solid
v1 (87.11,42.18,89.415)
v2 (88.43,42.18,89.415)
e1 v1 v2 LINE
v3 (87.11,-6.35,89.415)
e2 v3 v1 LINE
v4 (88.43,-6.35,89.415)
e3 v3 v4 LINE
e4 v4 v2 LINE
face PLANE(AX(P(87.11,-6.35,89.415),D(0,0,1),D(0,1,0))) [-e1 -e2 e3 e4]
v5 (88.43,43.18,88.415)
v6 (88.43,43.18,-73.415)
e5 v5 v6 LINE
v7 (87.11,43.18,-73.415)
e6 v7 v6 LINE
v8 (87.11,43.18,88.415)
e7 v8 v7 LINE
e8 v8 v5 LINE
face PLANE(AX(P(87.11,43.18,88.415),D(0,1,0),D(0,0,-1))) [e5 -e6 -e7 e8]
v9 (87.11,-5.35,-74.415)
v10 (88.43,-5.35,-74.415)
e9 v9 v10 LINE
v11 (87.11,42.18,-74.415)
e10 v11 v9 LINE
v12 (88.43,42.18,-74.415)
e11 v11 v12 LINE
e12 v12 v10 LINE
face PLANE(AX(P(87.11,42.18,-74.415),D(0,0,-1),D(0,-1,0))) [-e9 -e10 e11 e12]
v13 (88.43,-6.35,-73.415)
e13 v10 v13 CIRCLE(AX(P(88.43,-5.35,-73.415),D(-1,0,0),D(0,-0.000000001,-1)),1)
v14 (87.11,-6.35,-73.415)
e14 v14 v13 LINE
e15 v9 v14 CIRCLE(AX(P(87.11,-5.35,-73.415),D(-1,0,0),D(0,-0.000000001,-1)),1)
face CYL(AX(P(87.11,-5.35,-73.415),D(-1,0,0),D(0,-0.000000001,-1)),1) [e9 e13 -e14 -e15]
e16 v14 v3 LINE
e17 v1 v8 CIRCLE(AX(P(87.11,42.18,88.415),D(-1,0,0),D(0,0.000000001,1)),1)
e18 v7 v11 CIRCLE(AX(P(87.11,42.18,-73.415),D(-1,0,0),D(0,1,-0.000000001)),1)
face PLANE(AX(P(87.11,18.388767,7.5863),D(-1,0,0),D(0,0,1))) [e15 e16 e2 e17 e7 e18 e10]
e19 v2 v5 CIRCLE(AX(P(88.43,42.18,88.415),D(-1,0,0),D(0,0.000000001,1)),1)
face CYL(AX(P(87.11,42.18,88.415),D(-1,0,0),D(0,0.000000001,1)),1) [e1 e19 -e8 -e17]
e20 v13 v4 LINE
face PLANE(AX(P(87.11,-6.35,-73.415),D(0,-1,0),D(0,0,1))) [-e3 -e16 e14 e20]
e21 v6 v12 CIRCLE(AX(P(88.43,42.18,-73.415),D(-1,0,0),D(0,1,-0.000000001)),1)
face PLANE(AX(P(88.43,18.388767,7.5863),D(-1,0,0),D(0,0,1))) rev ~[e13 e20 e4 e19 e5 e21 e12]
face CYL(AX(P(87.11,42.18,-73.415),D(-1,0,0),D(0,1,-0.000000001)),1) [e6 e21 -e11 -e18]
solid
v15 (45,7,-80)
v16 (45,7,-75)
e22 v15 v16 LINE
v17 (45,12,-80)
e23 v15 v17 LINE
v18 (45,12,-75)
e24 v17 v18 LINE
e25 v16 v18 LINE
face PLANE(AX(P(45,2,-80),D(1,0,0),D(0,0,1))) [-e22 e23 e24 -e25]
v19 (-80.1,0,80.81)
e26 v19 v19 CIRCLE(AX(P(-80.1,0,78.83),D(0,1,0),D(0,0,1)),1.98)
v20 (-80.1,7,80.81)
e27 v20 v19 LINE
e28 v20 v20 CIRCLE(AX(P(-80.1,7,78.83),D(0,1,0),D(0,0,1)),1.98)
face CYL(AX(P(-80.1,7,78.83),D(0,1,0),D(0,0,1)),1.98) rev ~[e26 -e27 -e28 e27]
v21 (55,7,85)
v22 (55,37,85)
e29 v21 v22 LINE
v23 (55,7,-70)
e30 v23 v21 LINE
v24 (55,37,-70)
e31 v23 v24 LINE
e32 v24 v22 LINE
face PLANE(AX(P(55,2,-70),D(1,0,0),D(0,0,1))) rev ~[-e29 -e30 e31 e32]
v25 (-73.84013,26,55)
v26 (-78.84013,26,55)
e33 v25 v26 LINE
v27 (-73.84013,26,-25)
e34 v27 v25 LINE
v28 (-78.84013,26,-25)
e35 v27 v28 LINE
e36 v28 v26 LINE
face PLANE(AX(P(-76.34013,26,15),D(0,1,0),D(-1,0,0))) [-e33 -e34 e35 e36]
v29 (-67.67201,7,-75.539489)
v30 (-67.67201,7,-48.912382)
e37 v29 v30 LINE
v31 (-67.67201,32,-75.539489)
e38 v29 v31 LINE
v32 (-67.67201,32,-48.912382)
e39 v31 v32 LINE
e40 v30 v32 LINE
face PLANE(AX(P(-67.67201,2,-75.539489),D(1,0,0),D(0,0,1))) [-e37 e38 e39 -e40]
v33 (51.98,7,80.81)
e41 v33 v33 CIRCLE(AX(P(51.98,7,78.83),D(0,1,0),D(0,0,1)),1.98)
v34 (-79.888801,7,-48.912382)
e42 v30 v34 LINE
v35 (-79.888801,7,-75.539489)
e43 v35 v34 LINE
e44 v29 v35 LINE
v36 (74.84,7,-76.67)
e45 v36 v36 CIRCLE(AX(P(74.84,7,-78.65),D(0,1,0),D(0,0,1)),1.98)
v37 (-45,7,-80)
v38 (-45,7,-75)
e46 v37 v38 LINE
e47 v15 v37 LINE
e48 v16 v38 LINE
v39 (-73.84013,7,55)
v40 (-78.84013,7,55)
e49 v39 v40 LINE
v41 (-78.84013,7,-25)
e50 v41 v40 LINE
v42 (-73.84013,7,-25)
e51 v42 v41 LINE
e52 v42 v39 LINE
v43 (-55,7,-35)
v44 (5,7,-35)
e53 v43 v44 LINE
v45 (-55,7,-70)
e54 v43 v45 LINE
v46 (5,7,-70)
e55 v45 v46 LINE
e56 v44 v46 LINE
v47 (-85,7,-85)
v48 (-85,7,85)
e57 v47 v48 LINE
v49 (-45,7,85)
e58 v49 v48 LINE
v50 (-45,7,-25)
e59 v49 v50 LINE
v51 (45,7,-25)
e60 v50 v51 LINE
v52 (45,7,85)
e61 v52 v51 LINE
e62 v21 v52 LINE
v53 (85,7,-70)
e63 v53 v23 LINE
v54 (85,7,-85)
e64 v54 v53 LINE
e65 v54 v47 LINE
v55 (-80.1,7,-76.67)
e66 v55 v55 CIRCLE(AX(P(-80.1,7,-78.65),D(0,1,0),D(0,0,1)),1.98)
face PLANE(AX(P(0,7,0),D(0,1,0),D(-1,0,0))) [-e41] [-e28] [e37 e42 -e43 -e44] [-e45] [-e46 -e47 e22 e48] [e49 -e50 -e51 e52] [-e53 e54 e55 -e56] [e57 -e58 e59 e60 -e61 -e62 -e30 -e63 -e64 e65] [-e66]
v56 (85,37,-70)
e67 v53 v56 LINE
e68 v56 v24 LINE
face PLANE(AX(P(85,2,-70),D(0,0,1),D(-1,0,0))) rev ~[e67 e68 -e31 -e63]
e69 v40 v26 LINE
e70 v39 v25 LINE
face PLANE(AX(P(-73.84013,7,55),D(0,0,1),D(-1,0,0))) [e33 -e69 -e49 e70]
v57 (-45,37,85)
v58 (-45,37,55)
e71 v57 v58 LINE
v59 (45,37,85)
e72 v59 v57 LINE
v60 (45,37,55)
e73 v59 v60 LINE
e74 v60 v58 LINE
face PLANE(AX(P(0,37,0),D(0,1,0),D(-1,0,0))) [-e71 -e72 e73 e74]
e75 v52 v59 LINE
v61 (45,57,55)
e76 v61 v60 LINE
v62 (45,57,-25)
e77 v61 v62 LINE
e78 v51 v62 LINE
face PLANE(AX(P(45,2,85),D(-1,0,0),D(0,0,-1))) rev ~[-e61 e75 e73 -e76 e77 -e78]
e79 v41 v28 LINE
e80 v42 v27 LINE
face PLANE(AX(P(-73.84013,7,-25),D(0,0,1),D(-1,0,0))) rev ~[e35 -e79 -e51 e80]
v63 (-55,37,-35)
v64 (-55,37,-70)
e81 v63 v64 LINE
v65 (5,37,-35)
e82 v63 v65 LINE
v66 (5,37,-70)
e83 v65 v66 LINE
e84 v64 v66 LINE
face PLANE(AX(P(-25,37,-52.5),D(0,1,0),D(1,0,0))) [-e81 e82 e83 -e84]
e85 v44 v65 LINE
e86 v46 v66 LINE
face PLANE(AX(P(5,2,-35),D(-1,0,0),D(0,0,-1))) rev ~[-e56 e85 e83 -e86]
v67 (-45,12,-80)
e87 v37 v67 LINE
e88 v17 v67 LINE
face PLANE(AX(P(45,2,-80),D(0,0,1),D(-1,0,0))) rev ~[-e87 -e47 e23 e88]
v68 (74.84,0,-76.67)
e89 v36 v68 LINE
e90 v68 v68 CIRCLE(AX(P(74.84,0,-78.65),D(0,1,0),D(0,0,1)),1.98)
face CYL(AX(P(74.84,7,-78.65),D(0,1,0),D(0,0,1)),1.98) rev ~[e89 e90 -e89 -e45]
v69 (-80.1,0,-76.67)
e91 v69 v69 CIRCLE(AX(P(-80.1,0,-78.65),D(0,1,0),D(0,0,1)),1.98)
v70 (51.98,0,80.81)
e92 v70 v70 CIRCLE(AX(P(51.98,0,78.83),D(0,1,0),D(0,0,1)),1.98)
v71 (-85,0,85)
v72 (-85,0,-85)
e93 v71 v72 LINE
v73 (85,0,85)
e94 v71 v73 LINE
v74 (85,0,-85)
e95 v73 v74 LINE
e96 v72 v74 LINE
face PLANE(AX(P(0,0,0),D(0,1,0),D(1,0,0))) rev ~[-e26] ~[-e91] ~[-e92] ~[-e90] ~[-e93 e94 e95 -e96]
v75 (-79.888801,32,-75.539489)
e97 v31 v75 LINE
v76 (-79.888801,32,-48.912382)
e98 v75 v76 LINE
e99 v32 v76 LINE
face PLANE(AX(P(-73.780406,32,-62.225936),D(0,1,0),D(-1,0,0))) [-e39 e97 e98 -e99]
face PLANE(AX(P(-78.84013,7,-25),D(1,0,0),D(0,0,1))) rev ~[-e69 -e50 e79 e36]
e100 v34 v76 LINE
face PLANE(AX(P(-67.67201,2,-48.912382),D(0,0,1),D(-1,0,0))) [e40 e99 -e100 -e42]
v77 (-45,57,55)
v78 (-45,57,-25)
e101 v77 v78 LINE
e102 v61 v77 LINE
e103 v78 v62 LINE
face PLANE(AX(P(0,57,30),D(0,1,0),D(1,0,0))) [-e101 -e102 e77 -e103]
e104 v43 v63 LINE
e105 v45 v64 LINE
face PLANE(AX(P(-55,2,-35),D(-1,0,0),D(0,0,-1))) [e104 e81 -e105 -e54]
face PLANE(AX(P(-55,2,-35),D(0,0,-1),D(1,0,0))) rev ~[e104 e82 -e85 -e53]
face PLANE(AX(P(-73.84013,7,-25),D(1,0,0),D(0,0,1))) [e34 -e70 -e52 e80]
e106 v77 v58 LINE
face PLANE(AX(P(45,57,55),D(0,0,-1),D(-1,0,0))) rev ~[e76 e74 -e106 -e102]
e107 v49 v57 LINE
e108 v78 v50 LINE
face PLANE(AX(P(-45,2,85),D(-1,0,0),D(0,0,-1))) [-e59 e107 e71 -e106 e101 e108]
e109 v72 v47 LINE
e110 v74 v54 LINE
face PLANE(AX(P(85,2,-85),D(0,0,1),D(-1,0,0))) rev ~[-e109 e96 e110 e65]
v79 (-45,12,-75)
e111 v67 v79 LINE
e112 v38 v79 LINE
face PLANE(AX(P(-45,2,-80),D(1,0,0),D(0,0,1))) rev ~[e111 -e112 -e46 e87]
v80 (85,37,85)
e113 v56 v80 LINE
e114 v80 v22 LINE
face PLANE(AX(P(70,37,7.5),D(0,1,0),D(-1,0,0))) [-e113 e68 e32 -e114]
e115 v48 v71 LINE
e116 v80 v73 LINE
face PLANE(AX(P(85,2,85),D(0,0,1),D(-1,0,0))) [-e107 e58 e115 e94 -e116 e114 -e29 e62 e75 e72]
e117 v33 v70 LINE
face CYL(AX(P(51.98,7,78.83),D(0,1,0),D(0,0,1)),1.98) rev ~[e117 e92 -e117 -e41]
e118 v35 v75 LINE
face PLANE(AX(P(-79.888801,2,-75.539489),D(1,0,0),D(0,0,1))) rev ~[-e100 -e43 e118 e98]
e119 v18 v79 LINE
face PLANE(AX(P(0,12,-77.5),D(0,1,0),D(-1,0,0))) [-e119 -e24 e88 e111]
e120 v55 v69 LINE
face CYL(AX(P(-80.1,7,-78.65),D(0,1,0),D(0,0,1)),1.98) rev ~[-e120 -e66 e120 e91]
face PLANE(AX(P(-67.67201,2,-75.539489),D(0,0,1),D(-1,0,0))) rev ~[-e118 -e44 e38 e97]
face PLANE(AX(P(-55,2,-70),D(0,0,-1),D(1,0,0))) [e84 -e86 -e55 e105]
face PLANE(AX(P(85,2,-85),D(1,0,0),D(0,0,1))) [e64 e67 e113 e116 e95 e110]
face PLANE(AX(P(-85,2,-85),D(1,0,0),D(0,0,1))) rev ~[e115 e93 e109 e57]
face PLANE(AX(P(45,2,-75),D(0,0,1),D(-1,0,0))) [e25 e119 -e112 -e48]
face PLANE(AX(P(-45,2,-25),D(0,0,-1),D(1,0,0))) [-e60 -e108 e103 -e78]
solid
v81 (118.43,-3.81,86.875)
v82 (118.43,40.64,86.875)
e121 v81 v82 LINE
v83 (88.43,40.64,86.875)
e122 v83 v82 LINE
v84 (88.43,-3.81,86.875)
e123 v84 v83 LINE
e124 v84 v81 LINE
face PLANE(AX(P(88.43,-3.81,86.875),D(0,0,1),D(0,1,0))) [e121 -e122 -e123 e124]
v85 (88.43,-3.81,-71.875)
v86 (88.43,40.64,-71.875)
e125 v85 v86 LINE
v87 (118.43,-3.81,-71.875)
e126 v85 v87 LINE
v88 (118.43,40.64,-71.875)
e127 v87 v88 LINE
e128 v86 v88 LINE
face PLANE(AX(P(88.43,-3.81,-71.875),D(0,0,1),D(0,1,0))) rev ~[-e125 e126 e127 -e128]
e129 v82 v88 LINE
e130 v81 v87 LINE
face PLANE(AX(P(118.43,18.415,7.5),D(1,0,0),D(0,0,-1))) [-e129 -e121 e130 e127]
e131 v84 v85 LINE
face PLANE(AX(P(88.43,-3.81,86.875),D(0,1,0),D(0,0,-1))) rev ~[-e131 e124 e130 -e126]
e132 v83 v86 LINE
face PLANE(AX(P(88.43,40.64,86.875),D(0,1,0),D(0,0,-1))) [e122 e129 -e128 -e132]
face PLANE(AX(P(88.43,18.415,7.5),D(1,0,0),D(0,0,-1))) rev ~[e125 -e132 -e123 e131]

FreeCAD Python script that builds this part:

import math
import FreeCAD as App
import Part
import Sketcher

doc = App.newDocument("Part")
body = doc.addObject("PartDesign::Body", "Body")

sketch1 = body.newObject("Sketcher::SketchObject", "Sketch")
sketch1.AttachmentSupport = (doc.getObject("XZ_Plane"), [""])
sketch1.MapMode = "FlatFace"
sketch1.addGeometry(Part.LineSegment(App.Vector(-85, -85, 0), App.Vector(-85, 85, 0)), False)
sketch1.addGeometry(Part.LineSegment(App.Vector(-85, 85, 0), App.Vector(85, 85, 0)), False)
sketch1.addGeometry(Part.LineSegment(App.Vector(85, 85, 0), App.Vector(85, -85, 0)), False)
sketch1.addGeometry(Part.LineSegment(App.Vector(85, -85, 0), App.Vector(-85, -85, 0)), False)
sketch1.addConstraint(Sketcher.Constraint("Coincident", 0, 2, 1, 1))
sketch1.addConstraint(Sketcher.Constraint("Coincident", 1, 2, 2, 1))
sketch1.addConstraint(Sketcher.Constraint("Coincident", 2, 2, 3, 1))
sketch1.addConstraint(Sketcher.Constraint("Coincident", 3, 2, 0, 1))
sketch1.addConstraint(Sketcher.Constraint("Vertical", 0))
sketch1.addConstraint(Sketcher.Constraint("Horizontal", 1))
sketch1.addConstraint(Sketcher.Constraint("Vertical", 2))
sketch1.addConstraint(Sketcher.Constraint("Horizontal", 3))
sketch1.addConstraint(Sketcher.Constraint("Symmetric", 0, 2, 2, 2, -1, 1))
sketch1.addConstraint(Sketcher.Constraint("Equal", 3, 0))
sketch1.addConstraint(Sketcher.Constraint("DistanceX", 1, 1, 1, 2, 170.0))
pad1 = body.newObject("PartDesign::Pad", "Pad")
pad1.Profile = sketch1
pad1.Length = 2
pad1.Reversed = True

sketch2 = body.newObject("Sketcher::SketchObject", "Sketch001")
sketch2.AttachmentSupport = (doc.getObject("XZ_Plane"), [""])
sketch2.MapMode = "FlatFace"
sketch2.AttachmentOffset = App.Placement(App.Vector(0, 0, -2), App.Rotation())
sketch2.addGeometry(Part.LineSegment(App.Vector(85, 85, 0), App.Vector(85, -70, 0)), False)
sketch2.addGeometry(Part.LineSegment(App.Vector(85, -70, 0), App.Vector(55, -70, 0)), False)
sketch2.addGeometry(Part.LineSegment(App.Vector(55, -70, 0), App.Vector(55, 85, 0)), False)
sketch2.addGeometry(Part.LineSegment(App.Vector(55, 85, 0), App.Vector(85, 85, 0)), False)
sketch2.addConstraint(Sketcher.Constraint("Coincident", 0, 2, 1, 1))
sketch2.addConstraint(Sketcher.Constraint("Coincident", 1, 2, 2, 1))
sketch2.addConstraint(Sketcher.Constraint("Coincident", 2, 2, 3, 1))
sketch2.addConstraint(Sketcher.Constraint("Coincident", 3, 2, 0, 1))
sketch2.addConstraint(Sketcher.Constraint("Vertical", 0))
sketch2.addConstraint(Sketcher.Constraint("Horizontal", 1))
sketch2.addConstraint(Sketcher.Constraint("Vertical", 2))
sketch2.addConstraint(Sketcher.Constraint("Horizontal", 3))
sketch2.addConstraint(Sketcher.Constraint("DistanceX", 1, 2, 1, 1, 30.0))
sketch2.addConstraint(Sketcher.Constraint("DistanceY", 0, 2, 0, 1, 155.0))
sketch2.addConstraint(Sketcher.Constraint("DistanceX", -1, 1, 0, 2, 85.0))
sketch2.addConstraint(Sketcher.Constraint("DistanceY", 0, 2, -1, 1, 70.0))
pad2 = body.newObject("PartDesign::Pad", "Pad001")
pad2.Profile = sketch2
pad2.Length = 35
pad2.Reversed = True

sketch3 = body.newObject("Sketcher::SketchObject", "Sketch002")
sketch3.AttachmentSupport = (doc.getObject("XZ_Plane"), [""])
sketch3.MapMode = "FlatFace"
sketch3.AttachmentOffset = App.Placement(App.Vector(0, 0, -2), App.Rotation())
sketch3.addGeometry(Part.LineSegment(App.Vector(-45, -25, 0), App.Vector(-45, 85, 0)), False)
sketch3.addGeometry(Part.LineSegment(App.Vector(-45, 85, 0), App.Vector(45, 85, 0)), False)
sketch3.addGeometry(Part.LineSegment(App.Vector(45, 85, 0), App.Vector(45, -25, 0)), False)
sketch3.addGeometry(Part.LineSegment(App.Vector(45, -25, 0), App.Vector(-45, -25, 0)), False)
sketch3.addConstraint(Sketcher.Constraint("Coincident", 0, 2, 1, 1))
sketch3.addConstraint(Sketcher.Constraint("Coincident", 1, 2, 2, 1))
sketch3.addConstraint(Sketcher.Constraint("Coincident", 2, 2, 3, 1))
sketch3.addConstraint(Sketcher.Constraint("Coincident", 3, 2, 0, 1))
sketch3.addConstraint(Sketcher.Constraint("Vertical", 0))
sketch3.addConstraint(Sketcher.Constraint("Horizontal", 1))
sketch3.addConstraint(Sketcher.Constraint("Vertical", 2))
sketch3.addConstraint(Sketcher.Constraint("Horizontal", 3))
sketch3.addConstraint(Sketcher.Constraint("DistanceX", 1, 1, 1, 2, 90.0))
sketch3.addConstraint(Sketcher.Constraint("DistanceY", 0, 1, 0, 2, 110.0))
sketch3.addConstraint(Sketcher.Constraint("DistanceX", 0, 2, -1, 1, 45.0))
sketch3.addConstraint(Sketcher.Constraint("DistanceY", -1, 1, 0, 2, 85.0))
pad3 = body.newObject("PartDesign::Pad", "Pad002")
pad3.Profile = sketch3
pad3.Length = 55
pad3.Reversed = True

sketch4 = body.newObject("Sketcher::SketchObject", "Sketch003")
sketch4.AttachmentSupport = (doc.getObject("XZ_Plane"), [""])
sketch4.MapMode = "FlatFace"
sketch4.AttachmentOffset = App.Placement(App.Vector(0, 0, -2), App.Rotation())
sketch4.addGeometry(Part.LineSegment(App.Vector(-55, -70, 0), App.Vector(-55, -35, 0)), False)
sketch4.addGeometry(Part.LineSegment(App.Vector(-55, -35, 0), App.Vector(5, -35, 0)), False)
sketch4.addGeometry(Part.LineSegment(App.Vector(5, -35, 0), App.Vector(5, -70, 0)), False)
sketch4.addGeometry(Part.LineSegment(App.Vector(5, -70, 0), App.Vector(-55, -70, 0)), False)
sketch4.addConstraint(Sketcher.Constraint("Coincident", 0, 2, 1, 1))
sketch4.addConstraint(Sketcher.Constraint("Coincident", 1, 2, 2, 1))
sketch4.addConstraint(Sketcher.Constraint("Coincident", 2, 2, 3, 1))
sketch4.addConstraint(Sketcher.Constraint("Coincident", 3, 2, 0, 1))
sketch4.addConstraint(Sketcher.Constraint("Vertical", 0))
sketch4.addConstraint(Sketcher.Constraint("Horizontal", 1))
sketch4.addConstraint(Sketcher.Constraint("Vertical", 2))
sketch4.addConstraint(Sketcher.Constraint("Horizontal", 3))
sketch4.addConstraint(Sketcher.Constraint("DistanceX", 1, 1, 1, 2, 60.0))
sketch4.addConstraint(Sketcher.Constraint("DistanceY", 0, 1, 0, 2, 35.0))
sketch4.addConstraint(Sketcher.Constraint("DistanceX", 0, 2, -1, 1, 55.0))
sketch4.addConstraint(Sketcher.Constraint("DistanceY", 0, 2, -1, 1, 35.0))
pad4 = body.newObject("PartDesign::Pad", "Pad003")
pad4.Profile = sketch4
pad4.Length = 35
pad4.Reversed = True

sketch5 = body.newObject("Sketcher::SketchObject", "Sketch004")
sketch5.AttachmentSupport = (doc.getObject("XZ_Plane"), [""])
sketch5.MapMode = "FlatFace"
sketch5.AttachmentOffset = App.Placement(App.Vector(0, 0, -2), App.Rotation())
sketch5.addGeometry(Part.LineSegment(App.Vector(45, -75, 0), App.Vector(45, -80, 0)), False)
sketch5.addGeometry(Part.LineSegment(App.Vector(45, -80, 0), App.Vector(-45, -80, 0)), False)
sketch5.addGeometry(Part.LineSegment(App.Vector(-45, -80, 0), App.Vector(-45, -75, 0)), False)
sketch5.addGeometry(Part.LineSegment(App.Vector(-45, -75, 0), App.Vector(45, -75, 0)), False)
sketch5.addConstraint(Sketcher.Constraint("Coincident", 0, 2, 1, 1))
sketch5.addConstraint(Sketcher.Constraint("Coincident", 1, 2, 2, 1))
sketch5.addConstraint(Sketcher.Constraint("Coincident", 2, 2, 3, 1))
sketch5.addConstraint(Sketcher.Constraint("Coincident", 3, 2, 0, 1))
sketch5.addConstraint(Sketcher.Constraint("Vertical", 0))
sketch5.addConstraint(Sketcher.Constraint("Horizontal", 1))
sketch5.addConstraint(Sketcher.Constraint("Vertical", 2))
sketch5.addConstraint(Sketcher.Constraint("Horizontal", 3))
sketch5.addConstraint(Sketcher.Constraint("DistanceX", 1, 2, 1, 1, 90.0))
sketch5.addConstraint(Sketcher.Constraint("DistanceY", 0, 2, 0, 1, 5.0))
sketch5.addConstraint(Sketcher.Constraint("DistanceX", -1, 1, 0, 2, 45.0))
sketch5.addConstraint(Sketcher.Constraint("DistanceY", 0, 2, -1, 1, 80.0))
pad5 = body.newObject("PartDesign::Pad", "Pad004")
pad5.Profile = sketch5
pad5.Length = 10
pad5.Reversed = True

sketch6 = body.newObject("Sketcher::SketchObject", "Sketch005")
sketch6.AttachmentSupport = (doc.getObject("XZ_Plane"), [""])
sketch6.MapMode = "FlatFace"
sketch6.AttachmentOffset = App.Placement(App.Vector(0, 0, -2), App.Rotation())
sketch6.addGeometry(Part.LineSegment(App.Vector(-67.67201, -48.912382, 0), App.Vector(-67.67201, -75.539489, 0)), False)
sketch6.addGeometry(Part.LineSegment(App.Vector(-67.67201, -75.539489, 0), App.Vector(-79.888801, -75.539489, 0)), False)
sketch6.addGeometry(Part.LineSegment(App.Vector(-79.888801, -75.539489, 0), App.Vector(-79.888801, -48.912382, 0)), False)
sketch6.addGeometry(Part.LineSegment(App.Vector(-79.888801, -48.912382, 0), App.Vector(-67.67201, -48.912382, 0)), False)
sketch6.addConstraint(Sketcher.Constraint("Coincident", 0, 2, 1, 1))
sketch6.addConstraint(Sketcher.Constraint("Coincident", 1, 2, 2, 1))
sketch6.addConstraint(Sketcher.Constraint("Coincident", 2, 2, 3, 1))
sketch6.addConstraint(Sketcher.Constraint("Coincident", 3, 2, 0, 1))
sketch6.addConstraint(Sketcher.Constraint("Vertical", 0))
sketch6.addConstraint(Sketcher.Constraint("Horizontal", 1))
sketch6.addConstraint(Sketcher.Constraint("Vertical", 2))
sketch6.addConstraint(Sketcher.Constraint("Horizontal", 3))
sketch6.addConstraint(Sketcher.Constraint("DistanceX", 1, 2, 1, 1, 12.216791))
sketch6.addConstraint(Sketcher.Constraint("DistanceX", 1, 2, -1, 1, 79.888801))
sketch6.addConstraint(Sketcher.Constraint("DistanceY", 0, 2, 0, 1, 26.627107))
sketch6.addConstraint(Sketcher.Constraint("DistanceY", 0, 2, -1, 1, 75.539489))
pad6 = body.newObject("PartDesign::Pad", "Pad005")
pad6.Profile = sketch6
pad6.Length = 30
pad6.Reversed = True

sketch7 = body.newObject("Sketcher::SketchObject", "Sketch006")
sketch7.AttachmentSupport = (doc.getObject("XZ_Plane"), [""])
sketch7.MapMode = "FlatFace"
sketch7.AttachmentOffset = App.Placement(App.Vector(0, 0, -2), App.Rotation())
sketch7.addGeometry(Part.LineSegment(App.Vector(85, 85, 0), App.Vector(85, -85, 0)), False)
sketch7.addGeometry(Part.LineSegment(App.Vector(85, -85, 0), App.Vector(-85, -85, 0)), False)
sketch7.addGeometry(Part.LineSegment(App.Vector(-85, -85, 0), App.Vector(-85, 85, 0)), False)
sketch7.addGeometry(Part.LineSegment(App.Vector(-85, 85, 0), App.Vector(85, 85, 0)), False)
sketch7.addConstraint(Sketcher.Constraint("Coincident", 0, 2, 1, 1))
sketch7.addConstraint(Sketcher.Constraint("Coincident", 1, 2, 2, 1))
sketch7.addConstraint(Sketcher.Constraint("Coincident", 2, 2, 3, 1))
sketch7.addConstraint(Sketcher.Constraint("Coincident", 3, 2, 0, 1))
sketch7.addConstraint(Sketcher.Constraint("Vertical", 0))
sketch7.addConstraint(Sketcher.Constraint("Horizontal", 1))
sketch7.addConstraint(Sketcher.Constraint("Vertical", 2))
sketch7.addConstraint(Sketcher.Constraint("Horizontal", 3))
sketch7.addConstraint(Sketcher.Constraint("Symmetric", 0, 2, 2, 2, -1, 1))
sketch7.addConstraint(Sketcher.Constraint("Equal", 3, 0))
sketch7.addConstraint(Sketcher.Constraint("DistanceX", 1, 2, 1, 1, 170.0))
pad7 = body.newObject("PartDesign::Pad", "Pad006")
pad7.Profile = sketch7
pad7.Length = 5
pad7.Reversed = True

sketch8 = body.newObject("Sketcher::SketchObject", "Sketch007")
sketch8.AttachmentSupport = (doc.getObject("XZ_Plane"), [""])
sketch8.MapMode = "FlatFace"
sketch8.AttachmentOffset = App.Placement(App.Vector(0, 0, -7), App.Rotation())
sketch8.addGeometry(Part.LineSegment(App.Vector(-73.84013, 55, 0), App.Vector(-73.84013, -25, 0)), False)
sketch8.addGeometry(Part.LineSegment(App.Vector(-73.84013, -25, 0), App.Vector(-78.84013, -25, 0)), False)
sketch8.addGeometry(Part.LineSegment(App.Vector(-78.84013, -25, 0), App.Vector(-78.84013, 55, 0)), False)
sketch8.addGeometry(Part.LineSegment(App.Vector(-78.84013, 55, 0), App.Vector(-73.84013, 55, 0)), False)
sketch8.addConstraint(Sketcher.Constraint("Coincident", 0, 2, 1, 1))
sketch8.addConstraint(Sketcher.Constraint("Coincident", 1, 2, 2, 1))
sketch8.addConstraint(Sketcher.Constraint("Coincident", 2, 2, 3, 1))
sketch8.addConstraint(Sketcher.Constraint("Coincident", 3, 2, 0, 1))
sketch8.addConstraint(Sketcher.Constraint("Vertical", 0))
sketch8.addConstraint(Sketcher.Constraint("Horizontal", 1))
sketch8.addConstraint(Sketcher.Constraint("Vertical", 2))
sketch8.addConstraint(Sketcher.Constraint("Horizontal", 3))
sketch8.addConstraint(Sketcher.Constraint("DistanceX", 1, 2, 1, 1, 5.0))
sketch8.addConstraint(Sketcher.Constraint("DistanceY", 0, 2, 0, 1, 80.0))
sketch8.addConstraint(Sketcher.Constraint("DistanceY", 0, 2, -1, 1, 25.0))
sketch8.addConstraint(Sketcher.Constraint("DistanceX", 0, 2, -1, 1, 73.84013))
pad8 = body.newObject("PartDesign::Pad", "Pad007")
pad8.Profile = sketch8
pad8.Length = 19
pad8.Reversed = True

sketch9 = body.newObject("Sketcher::SketchObject", "Sketch008")
sketch9.AttachmentSupport = (doc.getObject("XZ_Plane"), [""])
sketch9.MapMode = "FlatFace"
sketch9.AttachmentOffset = App.Placement(App.Vector(0, 0, -57), App.Rotation())
sketch9.addGeometry(Part.LineSegment(App.Vector(110.708, 110.708, 0), App.Vector(110.708, -110.708, 0)), False)
sketch9.addGeometry(Part.LineSegment(App.Vector(110.708, -110.708, 0), App.Vector(-110.708, -110.708, 0)), False)
sketch9.addGeometry(Part.LineSegment(App.Vector(-110.708, -110.708, 0), App.Vector(-110.708, 110.708, 0)), False)
sketch9.addGeometry(Part.LineSegment(App.Vector(-110.708, 110.708, 0), App.Vector(110.708, 110.708, 0)), False)
sketch9.addGeometry(Part.LineSegment(App.Vector(-45, -25, 0), App.Vector(45, -25, 0)), False)
sketch9.addGeometry(Part.LineSegment(App.Vector(45, -25, 0), App.Vector(45, 55, 0)), False)
sketch9.addGeometry(Part.LineSegment(App.Vector(45, 55, 0), App.Vector(-45, 55, 0)), False)
sketch9.addGeometry(Part.LineSegment(App.Vector(-45, 55, 0), App.Vector(-45, -25, 0)), False)
sketch9.addConstraint(Sketcher.Constraint("Coincident", 0, 2, 1, 1))
sketch9.addConstraint(Sketcher.Constraint("Coincident", 1, 2, 2, 1))
sketch9.addConstraint(Sketcher.Constraint("Coincident", 2, 2, 3, 1))
sketch9.addConstraint(Sketcher.Constraint("Coincident", 3, 2, 0, 1))
sketch9.addConstraint(Sketcher.Constraint("Coincident", 4, 2, 5, 1))
sketch9.addConstraint(Sketcher.Constraint("Coincident", 5, 2, 6, 1))
sketch9.addConstraint(Sketcher.Constraint("Coincident", 6, 2, 7, 1))
sketch9.addConstraint(Sketcher.Constraint("Coincident", 7, 2, 4, 1))
sketch9.addConstraint(Sketcher.Constraint("Vertical", 0))
sketch9.addConstraint(Sketcher.Constraint("Horizontal", 1))
sketch9.addConstraint(Sketcher.Constraint("Vertical", 2))
sketch9.addConstraint(Sketcher.Constraint("Horizontal", 3))
sketch9.addConstraint(Sketcher.Constraint("Horizontal", 4))
sketch9.addConstraint(Sketcher.Constraint("Vertical", 5))
sketch9.addConstraint(Sketcher.Constraint("Horizontal", 6))
sketch9.addConstraint(Sketcher.Constraint("Vertical", 7))
sketch9.addConstraint(Sketcher.Constraint("Symmetric", 0, 2, 2, 2, -1, 1))
sketch9.addConstraint(Sketcher.Constraint("Equal", 3, 0))
sketch9.addConstraint(Sketcher.Constraint("DistanceX", 4, 1, 4, 2, 90.0))
sketch9.addConstraint(Sketcher.Constraint("DistanceY", 5, 1, 5, 2, 80.0))
sketch9.addConstraint(Sketcher.Constraint("DistanceX", -1, 1, 4, 2, 45.0))
sketch9.addConstraint(Sketcher.Constraint("DistanceY", 4, 2, -1, 1, 25.0))
sketch9.addConstraint(Sketcher.Constraint("DistanceX", 1, 2, 1, 1, 221.416))
pocket1 = body.newObject("PartDesign::Pocket", "Pocket")
pocket1.Profile = sketch9
pocket1.Length = 20
pocket1.Reversed = True

sketch10 = body.newObject("Sketcher::SketchObject", "Sketch009")
sketch10.AttachmentSupport = (doc.getObject("XZ_Plane"), [""])
sketch10.MapMode = "FlatFace"
sketch10.AttachmentOffset = App.Placement(App.Vector(0, 0, -7), App.Rotation())
sketch10.addGeometry(Part.Circle(App.Vector(74.84, -78.65, 0), App.Vector(0, 0, 1), 1.98), False)
sketch10.addConstraint(Sketcher.Constraint("Diameter", 0, 3.96))
sketch10.addConstraint(Sketcher.Constraint("DistanceX", -1, 1, 0, 3, 74.84))
sketch10.addConstraint(Sketcher.Constraint("DistanceY", 0, 3, -1, 1, 78.65))
pocket2 = body.newObject("PartDesign::Pocket", "Pocket001")
pocket2.Profile = sketch10
pocket2.Type = "UpToFirst"
pocket2.Reversed = True

sketch11 = body.newObject("Sketcher::SketchObject", "Sketch010")
sketch11.AttachmentSupport = (doc.getObject("XZ_Plane"), [""])
sketch11.MapMode = "FlatFace"
sketch11.AttachmentOffset = App.Placement(App.Vector(0, 0, -7), App.Rotation())
sketch11.addGeometry(Part.Circle(App.Vector(-80.1, -78.65, 0), App.Vector(0, 0, 1), 1.98), False)
sketch11.addConstraint(Sketcher.Constraint("Diameter", 0, 3.96))
sketch11.addConstraint(Sketcher.Constraint("DistanceX", 0, 3, -1, 1, 80.1))
sketch11.addConstraint(Sketcher.Constraint("DistanceY", 0, 3, -1, 1, 78.65))
pocket3 = body.newObject("PartDesign::Pocket", "Pocket002")
pocket3.Profile = sketch11
pocket3.Type = "UpToFirst"
pocket3.Reversed = True

sketch12 = body.newObject("Sketcher::SketchObject", "Sketch011")
sketch12.AttachmentSupport = (doc.getObject("XZ_Plane"), [""])
sketch12.MapMode = "FlatFace"
sketch12.AttachmentOffset = App.Placement(App.Vector(0, 0, -7), App.Rotation())
sketch12.addGeometry(Part.Circle(App.Vector(-80.1, 78.83, 0), App.Vector(0, 0, 1), 1.98), False)
sketch12.addConstraint(Sketcher.Constraint("Diameter", 0, 3.96))
sketch12.addConstraint(Sketcher.Constraint("DistanceX", 0, 3, -1, 1, 80.1))
sketch12.addConstraint(Sketcher.Constraint("DistanceY", -1, 1, 0, 3, 78.83))
pocket4 = body.newObject("PartDesign::Pocket", "Pocket003")
pocket4.Profile = sketch12
pocket4.Type = "UpToFirst"
pocket4.Reversed = True

sketch13 = body.newObject("Sketcher::SketchObject", "Sketch012")
sketch13.AttachmentSupport = (doc.getObject("XZ_Plane"), [""])
sketch13.MapMode = "FlatFace"
sketch13.AttachmentOffset = App.Placement(App.Vector(0, 0, -7), App.Rotation())
sketch13.addGeometry(Part.Circle(App.Vector(51.98, 78.83, 0), App.Vector(0, 0, 1), 1.98), False)
sketch13.addConstraint(Sketcher.Constraint("Diameter", 0, 3.96))
sketch13.addConstraint(Sketcher.Constraint("DistanceX", -1, 1, 0, 3, 51.98))
sketch13.addConstraint(Sketcher.Constraint("DistanceY", -1, 1, 0, 3, 78.83))
pocket5 = body.newObject("PartDesign::Pocket", "Pocket004")
pocket5.Profile = sketch13
pocket5.Type = "UpToFirst"
pocket5.Reversed = True
body2 = doc.addObject("PartDesign::Body", "Body001")

sketch14 = body2.newObject("Sketcher::SketchObject", "Sketch013")
sketch14.AttachmentSupport = (doc.getObject("YZ_Plane001"), [""])
sketch14.MapMode = "FlatFace"
sketch14.AttachmentOffset = App.Placement(App.Vector(0, 0, 87.11), App.Rotation())
sketch14.addGeometry(Part.LineSegment(App.Vector(43.18, -73.415, 0), App.Vector(43.18, 88.415, 0)), False)
sketch14.addGeometry(Part.ArcOfCircle(Part.Circle(App.Vector(42.18, 88.415, 0), App.Vector(0, 0, 1), 1), math.radians(0), math.radians(90)), False)
sketch14.addGeometry(Part.LineSegment(App.Vector(42.18, 89.415, 0), App.Vector(-6.35, 89.415, 0)), False)
sketch14.addGeometry(Part.LineSegment(App.Vector(-6.35, 89.415, 0), App.Vector(-6.35, -73.415, 0)), False)
sketch14.addGeometry(Part.ArcOfCircle(Part.Circle(App.Vector(-5.35, -73.415, 0), App.Vector(0, 0, 1), 1), math.radians(-180), math.radians(-90)), False)
sketch14.addGeometry(Part.LineSegment(App.Vector(-5.35, -74.415, 0), App.Vector(42.18, -74.415, 0)), False)
sketch14.addGeometry(Part.ArcOfCircle(Part.Circle(App.Vector(42.18, -73.415, 0), App.Vector(0, 0, 1), 1), math.radians(-90), math.radians(0)), False)
sketch14.addConstraint(Sketcher.Constraint("Tangent", 0, 2, 1, 1))
sketch14.addConstraint(Sketcher.Constraint("Tangent", 1, 2, 2, 1))
sketch14.addConstraint(Sketcher.Constraint("Coincident", 2, 2, 3, 1))
sketch14.addConstraint(Sketcher.Constraint("Tangent", 3, 2, 4, 1))
sketch14.addConstraint(Sketcher.Constraint("Tangent", 4, 2, 5, 1))
sketch14.addConstraint(Sketcher.Constraint("Tangent", 5, 2, 6, 1))
sketch14.addConstraint(Sketcher.Constraint("Tangent", 6, 2, 0, 1))
sketch14.addConstraint(Sketcher.Constraint("Vertical", 0))
sketch14.addConstraint(Sketcher.Constraint("Horizontal", 2))
sketch14.addConstraint(Sketcher.Constraint("Vertical", 3))
sketch14.addConstraint(Sketcher.Constraint("Horizontal", 5))
sketch14.addConstraint(Sketcher.Constraint("Equal", 1, 4))
sketch14.addConstraint(Sketcher.Constraint("Equal", 4, 6))
sketch14.addConstraint(Sketcher.Constraint("Radius", 1, 1.0))
sketch14.addConstraint(Sketcher.Constraint("DistanceX", 2, 2, 2, 1, 48.53))
sketch14.addConstraint(Sketcher.Constraint("DistanceY", 0, 1, 0, 2, 161.83))
sketch14.addConstraint(Sketcher.Constraint("DistanceX", -1, 1, 1, 3, 42.18))
sketch14.addConstraint(Sketcher.Constraint("DistanceY", -1, 1, 1, 3, 88.415))
pad9 = body2.newObject("PartDesign::Pad", "Pad008")
pad9.Profile = sketch14
pad9.Length = 1.32
body3 = doc.addObject("PartDesign::Body", "Body002")

sketch15 = body3.newObject("Sketcher::SketchObject", "Sketch014")
sketch15.AttachmentSupport = (doc.getObject("YZ_Plane002"), [""])
sketch15.MapMode = "FlatFace"
sketch15.AttachmentOffset = App.Placement(App.Vector(0, 0, 88.43), App.Rotation())
sketch15.addGeometry(Part.LineSegment(App.Vector(40.64, 86.875, 0), App.Vector(-3.81, 86.875, 0)), False)
sketch15.addGeometry(Part.LineSegment(App.Vector(-3.81, 86.875, 0), App.Vector(-3.81, -71.875, 0)), False)
sketch15.addGeometry(Part.LineSegment(App.Vector(-3.81, -71.875, 0), App.Vector(40.64, -71.875, 0)), False)
sketch15.addGeometry(Part.LineSegment(App.Vector(40.64, -71.875, 0), App.Vector(40.64, 86.875, 0)), False)
sketch15.addConstraint(Sketcher.Constraint("Coincident", 0, 2, 1, 1))
sketch15.addConstraint(Sketcher.Constraint("Coincident", 1, 2, 2, 1))
sketch15.addConstraint(Sketcher.Constraint("Coincident", 2, 2, 3, 1))
sketch15.addConstraint(Sketcher.Constraint("Coincident", 3, 2, 0, 1))
sketch15.addConstraint(Sketcher.Constraint("Horizontal", 0))
sketch15.addConstraint(Sketcher.Constraint("Vertical", 1))
sketch15.addConstraint(Sketcher.Constraint("Horizontal", 2))
sketch15.addConstraint(Sketcher.Constraint("Vertical", 3))
sketch15.addConstraint(Sketcher.Constraint("DistanceX", 0, 2, 0, 1, 44.45))
sketch15.addConstraint(Sketcher.Constraint("DistanceY", 1, 2, 1, 1, 158.75))
sketch15.addConstraint(Sketcher.Constraint("DistanceX", 0, 2, -1, 1, 3.81))
sketch15.addConstraint(Sketcher.Constraint("DistanceY", -1, 1, 0, 2, 86.875))
pad10 = body3.newObject("PartDesign::Pad", "Pad009")
pad10.Profile = sketch15
pad10.Length = 30

doc.recompute()
